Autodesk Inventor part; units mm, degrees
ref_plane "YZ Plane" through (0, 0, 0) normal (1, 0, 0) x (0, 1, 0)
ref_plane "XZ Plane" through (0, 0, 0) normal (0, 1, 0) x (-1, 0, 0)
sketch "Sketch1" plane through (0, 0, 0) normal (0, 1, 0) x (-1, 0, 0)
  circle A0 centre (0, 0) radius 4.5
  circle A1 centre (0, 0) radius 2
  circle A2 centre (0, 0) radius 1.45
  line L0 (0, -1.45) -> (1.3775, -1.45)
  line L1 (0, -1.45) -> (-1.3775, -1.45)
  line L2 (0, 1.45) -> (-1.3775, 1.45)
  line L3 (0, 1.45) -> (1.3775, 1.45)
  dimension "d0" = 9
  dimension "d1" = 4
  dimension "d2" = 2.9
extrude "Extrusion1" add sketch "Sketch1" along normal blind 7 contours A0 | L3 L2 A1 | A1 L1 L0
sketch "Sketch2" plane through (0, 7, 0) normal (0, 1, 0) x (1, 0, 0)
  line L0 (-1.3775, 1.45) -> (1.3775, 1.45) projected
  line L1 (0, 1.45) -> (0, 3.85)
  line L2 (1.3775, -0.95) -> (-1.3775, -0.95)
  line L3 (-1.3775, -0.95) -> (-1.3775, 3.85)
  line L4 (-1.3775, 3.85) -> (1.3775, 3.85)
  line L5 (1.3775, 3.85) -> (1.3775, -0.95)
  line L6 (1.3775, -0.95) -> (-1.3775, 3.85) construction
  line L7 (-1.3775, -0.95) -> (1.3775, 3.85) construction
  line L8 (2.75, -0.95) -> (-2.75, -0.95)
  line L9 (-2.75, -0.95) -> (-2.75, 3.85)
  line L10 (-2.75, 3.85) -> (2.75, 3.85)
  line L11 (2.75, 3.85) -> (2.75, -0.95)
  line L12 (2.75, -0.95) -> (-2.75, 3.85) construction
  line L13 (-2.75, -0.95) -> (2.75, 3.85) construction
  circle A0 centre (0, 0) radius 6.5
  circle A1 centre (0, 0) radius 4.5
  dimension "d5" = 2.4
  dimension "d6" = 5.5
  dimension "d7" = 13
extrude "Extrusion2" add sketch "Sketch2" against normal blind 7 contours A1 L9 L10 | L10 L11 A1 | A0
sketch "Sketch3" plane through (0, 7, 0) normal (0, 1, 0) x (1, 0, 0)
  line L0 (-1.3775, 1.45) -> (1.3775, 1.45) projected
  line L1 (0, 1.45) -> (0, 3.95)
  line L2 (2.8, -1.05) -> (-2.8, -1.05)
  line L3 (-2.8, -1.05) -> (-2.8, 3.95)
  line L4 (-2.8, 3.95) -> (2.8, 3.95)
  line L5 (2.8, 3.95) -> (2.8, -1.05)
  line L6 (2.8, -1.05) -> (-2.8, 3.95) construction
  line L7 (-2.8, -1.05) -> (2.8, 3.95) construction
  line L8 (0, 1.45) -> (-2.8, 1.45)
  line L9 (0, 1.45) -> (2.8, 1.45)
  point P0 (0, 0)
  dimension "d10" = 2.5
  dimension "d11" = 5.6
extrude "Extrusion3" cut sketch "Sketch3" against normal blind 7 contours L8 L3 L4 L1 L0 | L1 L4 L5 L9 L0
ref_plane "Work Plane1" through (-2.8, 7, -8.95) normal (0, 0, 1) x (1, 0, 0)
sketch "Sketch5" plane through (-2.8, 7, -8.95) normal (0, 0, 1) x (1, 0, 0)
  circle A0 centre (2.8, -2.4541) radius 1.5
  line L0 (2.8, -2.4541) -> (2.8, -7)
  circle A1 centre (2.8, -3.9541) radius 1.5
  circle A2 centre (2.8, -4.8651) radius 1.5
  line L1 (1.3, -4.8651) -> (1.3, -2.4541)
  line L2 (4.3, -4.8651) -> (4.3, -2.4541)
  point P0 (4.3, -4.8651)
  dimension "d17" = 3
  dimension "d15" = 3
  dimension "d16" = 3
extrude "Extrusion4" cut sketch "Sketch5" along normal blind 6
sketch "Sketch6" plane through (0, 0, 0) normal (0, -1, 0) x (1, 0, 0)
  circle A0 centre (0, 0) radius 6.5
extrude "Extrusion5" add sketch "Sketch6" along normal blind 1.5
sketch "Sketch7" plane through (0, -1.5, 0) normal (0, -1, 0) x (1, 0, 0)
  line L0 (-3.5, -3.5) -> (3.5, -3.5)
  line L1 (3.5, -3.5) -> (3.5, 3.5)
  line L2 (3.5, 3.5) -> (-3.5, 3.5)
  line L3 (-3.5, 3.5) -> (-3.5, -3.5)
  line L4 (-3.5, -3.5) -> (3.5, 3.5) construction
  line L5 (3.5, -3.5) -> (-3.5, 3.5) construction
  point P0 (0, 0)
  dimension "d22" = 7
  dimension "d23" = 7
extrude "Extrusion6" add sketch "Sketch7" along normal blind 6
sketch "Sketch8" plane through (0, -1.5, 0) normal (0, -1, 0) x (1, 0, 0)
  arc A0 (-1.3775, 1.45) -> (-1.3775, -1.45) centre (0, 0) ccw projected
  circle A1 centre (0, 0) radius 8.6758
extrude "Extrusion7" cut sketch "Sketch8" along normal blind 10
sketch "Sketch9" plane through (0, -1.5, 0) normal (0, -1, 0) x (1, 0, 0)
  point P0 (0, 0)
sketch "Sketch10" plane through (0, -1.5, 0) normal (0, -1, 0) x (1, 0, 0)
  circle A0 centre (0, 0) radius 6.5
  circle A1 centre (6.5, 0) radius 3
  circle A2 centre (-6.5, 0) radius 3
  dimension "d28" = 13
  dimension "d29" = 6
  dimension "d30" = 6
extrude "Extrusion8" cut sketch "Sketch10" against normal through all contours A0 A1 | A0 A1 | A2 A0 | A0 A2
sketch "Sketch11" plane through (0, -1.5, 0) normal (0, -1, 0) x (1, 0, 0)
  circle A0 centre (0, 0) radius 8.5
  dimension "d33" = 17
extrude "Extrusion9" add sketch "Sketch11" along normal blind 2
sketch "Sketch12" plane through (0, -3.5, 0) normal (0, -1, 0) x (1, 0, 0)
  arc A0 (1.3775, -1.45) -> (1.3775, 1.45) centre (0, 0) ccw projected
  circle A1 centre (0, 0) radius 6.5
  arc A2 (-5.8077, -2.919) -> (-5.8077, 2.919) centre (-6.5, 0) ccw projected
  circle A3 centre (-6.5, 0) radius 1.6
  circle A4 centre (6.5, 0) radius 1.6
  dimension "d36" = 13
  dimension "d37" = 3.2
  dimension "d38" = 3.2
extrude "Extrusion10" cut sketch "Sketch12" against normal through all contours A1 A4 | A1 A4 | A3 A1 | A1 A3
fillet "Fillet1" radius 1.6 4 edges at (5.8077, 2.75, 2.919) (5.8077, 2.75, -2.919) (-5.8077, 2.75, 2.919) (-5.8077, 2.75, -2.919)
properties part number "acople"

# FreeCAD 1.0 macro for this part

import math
import FreeCAD as App
import Part
import Sketcher
from FreeCAD import Vector


def edges_at(feature, points):
    """Names of the edges that pass closest to the given points."""
    edges = feature.Shape.Edges
    near = lambda p: min(range(len(edges)), key=lambda i: edges[i].distToShape(Part.Vertex(*p))[0])
    return sorted({f"Edge{near(p) + 1}" for p in points})

doc = App.newDocument("Part")
params = doc.addObject("Spreadsheet::Sheet", "Params")
for row, (alias, value) in enumerate([
    ("sketch1_diameter", "9 mm"),
    ("sketch1_radius", "2 mm"),
    ("pad1_length", "7 mm"),
    ("sketch2_diameter", "13 mm"),
    ("sketch2_diameter2", "9 mm"),
    ("pad2_length", "7 mm"),
    ("sketch3_width", "5.6 mm"),
    ("sketch3_height", "2.5 mm"),
    ("pocket1_length", "7 mm"),
    ("sketch4_radius", "1.5 mm"),
    ("pocket2_length", "6 mm"),
    ("sketch5_diameter", "13 mm"),
    ("pad3_length", "1.5 mm"),
    ("sketch6_width", "7 mm"),
    ("pad4_length", "6 mm"),
    ("pocket3_length", "10 mm"),
    ("sketch8_diameter", "6 mm"),
    ("sketch9_diameter", "17 mm"),
    ("pad5_length", "2 mm"),
    ("sketch10_diameter", "3.2 mm"),
    ("fillet_radius", "1.6 mm"),
], start=1):
    params.set(f"A{row}", alias)
    params.set(f"B{row}", "=" + value)
    params.setAlias(f"B{row}", alias)

body = doc.addObject("PartDesign::Body", "Body")

# Sketch on XZ plane
sketch1 = body.newObject("Sketcher::SketchObject", "Sketch")
sketch1.AttachmentSupport = (doc.getObject("XZ_Plane"), [""])
sketch1.MapMode = "FlatFace"
sketch1.addGeometry(Part.Circle(Vector(0, 0, 0), Vector(0, 0, 1), 4.5), False)
sketch1.addGeometry(Part.ArcOfCircle(Part.Circle(Vector(0, 0, 0), Vector(0, 0, 1), 2), math.radians(133.531199), math.radians(226.468801)), False)
sketch1.addGeometry(Part.LineSegment(Vector(-1.3775, -1.45, 0), Vector(1.3775, -1.45, 0)), False)
sketch1.addGeometry(Part.ArcOfCircle(Part.Circle(Vector(0, 0, 0), Vector(0, 0, 1), 2), math.radians(-46.468801), math.radians(46.468801)), False)
sketch1.addGeometry(Part.LineSegment(Vector(1.3775, 1.45, 0), Vector(-1.3775, 1.45, 0)), False)
sketch1.addConstraint(Sketcher.Constraint("Coincident", 1, 2, 2, 1))
sketch1.addConstraint(Sketcher.Constraint("Coincident", 2, 2, 3, 1))
sketch1.addConstraint(Sketcher.Constraint("Coincident", 3, 2, 4, 1))
sketch1.addConstraint(Sketcher.Constraint("Coincident", 4, 2, 1, 1))
sketch1.addConstraint(Sketcher.Constraint("Horizontal", 2))
sketch1.addConstraint(Sketcher.Constraint("Horizontal", 4))
sketch1.addConstraint(Sketcher.Constraint("Coincident", 0, 3, -1, 1))
sketch1.addConstraint(Sketcher.Constraint("Coincident", 1, 3, -1, 1))
sketch1.addConstraint(Sketcher.Constraint("Coincident", 3, 3, -1, 1))
sketch1.addConstraint(Sketcher.Constraint("Equal", 1, 3))
sketch1.addConstraint(Sketcher.Constraint("Vertical", 2, 2, 3, 2))
sketch1.addConstraint(Sketcher.Constraint("Diameter", 0, 9.0))
sketch1.addConstraint(Sketcher.Constraint("Radius", 1, 2.0))
sketch1.addConstraint(Sketcher.Constraint("DistanceY", 2, 2, 3, 2, 2.9))
sketch1.setExpression("Constraints[11]", "Params.sketch1_diameter")
sketch1.setExpression("Constraints[12]", "Params.sketch1_radius")
pad1 = body.newObject("PartDesign::Pad", "Pad")
pad1.Profile = sketch1
pad1.setExpression("Length", "Params.pad1_length")
pad1.Reversed = True

# Sketch on XZ plane
sketch2 = body.newObject("Sketcher::SketchObject", "Sketch001")
sketch2.AttachmentSupport = (doc.getObject("XZ_Plane"), [""])
sketch2.MapMode = "FlatFace"
sketch2.AttachmentOffset = App.Placement(Vector(0, 0, -7), App.Rotation())
sketch2.addGeometry(Part.Circle(Vector(0, 0, 0), Vector(0, 0, 1), 6.5), False)
sketch2.addGeometry(Part.Circle(Vector(0, 0, 0), Vector(0, 0, 1), 4.5), False)
sketch2.addConstraint(Sketcher.Constraint("Coincident", 0, 3, -1, 1))
sketch2.addConstraint(Sketcher.Constraint("Coincident", 1, 3, -1, 1))
sketch2.addConstraint(Sketcher.Constraint("Diameter", 0, 13.0))
sketch2.addConstraint(Sketcher.Constraint("Diameter", 1, 9.0))
sketch2.setExpression("Constraints[2]", "Params.sketch2_diameter")
sketch2.setExpression("Constraints[3]", "Params.sketch2_diameter2")
pad2 = body.newObject("PartDesign::Pad", "Pad001")
pad2.Profile = sketch2
pad2.setExpression("Length", "Params.pad2_length")

# Sketch on XZ plane
sketch3 = body.newObject("Sketcher::SketchObject", "Sketch002")
sketch3.AttachmentSupport = (doc.getObject("XZ_Plane"), [""])
sketch3.MapMode = "FlatFace"
sketch3.AttachmentOffset = App.Placement(Vector(0, 0, -7), App.Rotation())
sketch3.addGeometry(Part.LineSegment(Vector(-2.8, -1.45, 0), Vector(2.8, -1.45, 0)), False)
sketch3.addGeometry(Part.LineSegment(Vector(2.8, -1.45, 0), Vector(2.8, -3.95, 0)), False)
sketch3.addGeometry(Part.LineSegment(Vector(2.8, -3.95, 0), Vector(-2.8, -3.95, 0)), False)
sketch3.addGeometry(Part.LineSegment(Vector(-2.8, -3.95, 0), Vector(-2.8, -1.45, 0)), False)
sketch3.addConstraint(Sketcher.Constraint("Coincident", 0, 2, 1, 1))
sketch3.addConstraint(Sketcher.Constraint("Coincident", 1, 2, 2, 1))
sketch3.addConstraint(Sketcher.Constraint("Coincident", 2, 2, 3, 1))
sketch3.addConstraint(Sketcher.Constraint("Coincident", 3, 2, 0, 1))
sketch3.addConstraint(Sketcher.Constraint("Horizontal", 0))
sketch3.addConstraint(Sketcher.Constraint("Vertical", 1))
sketch3.addConstraint(Sketcher.Constraint("Horizontal", 2))
sketch3.addConstraint(Sketcher.Constraint("Vertical", 3))
sketch3.addConstraint(Sketcher.Constraint("DistanceX", 0, 1, 0, 2, 5.6))
sketch3.addConstraint(Sketcher.Constraint("DistanceY", 1, 2, 1, 1, 2.5))
sketch3.addConstraint(Sketcher.Constraint("DistanceX", -1, 1, 0, 2, 2.8))
sketch3.addConstraint(Sketcher.Constraint("DistanceY", 0, 2, -1, 1, 1.45))
sketch3.setExpression("Constraints[8]", "Params.sketch3_width")
sketch3.setExpression("Constraints[9]", "Params.sketch3_height")
pocket1 = body.newObject("PartDesign::Pocket", "Pocket")
pocket1.Profile = sketch3
pocket1.setExpression("Length", "Params.pocket1_length")
pocket1.Reversed = True

# Sketch on XY plane
sketch4 = body.newObject("Sketcher::SketchObject", "Sketch003")
sketch4.AttachmentSupport = (doc.getObject("XY_Plane"), [""])
sketch4.MapMode = "FlatFace"
sketch4.AttachmentOffset = App.Placement(Vector(0, 0, -8.95), App.Rotation())
sketch4.addGeometry(Part.ArcOfCircle(Part.Circle(Vector(0, 4.5459, 0), Vector(0, 0, 1), 1.5), math.radians(0), math.radians(180)), False)
sketch4.addGeometry(Part.LineSegment(Vector(-1.5, 4.5459, 0), Vector(-1.5, 2.1349, 0)), False)
sketch4.addGeometry(Part.ArcOfCircle(Part.Circle(Vector(0, 2.1349, 0), Vector(0, 0, 1), 1.5), math.radians(180), math.radians(360)), False)
sketch4.addGeometry(Part.LineSegment(Vector(1.5, 2.1349, 0), Vector(1.5, 4.5459, 0)), False)
sketch4.addConstraint(Sketcher.Constraint("Tangent", 0, 2, 1, 1))
sketch4.addConstraint(Sketcher.Constraint("Tangent", 1, 2, 2, 1))
sketch4.addConstraint(Sketcher.Constraint("Tangent", 2, 2, 3, 1))
sketch4.addConstraint(Sketcher.Constraint("Tangent", 3, 2, 0, 1))
sketch4.addConstraint(Sketcher.Constraint("Vertical", 1))
sketch4.addConstraint(Sketcher.Constraint("Vertical", 3))
sketch4.addConstraint(Sketcher.Constraint("PointOnObject", 0, 3, -2))
sketch4.addConstraint(Sketcher.Constraint("Radius", 0, 1.5))
sketch4.addConstraint(Sketcher.Constraint("DistanceY", 1, 2, 1, 1, 2.411))
sketch4.addConstraint(Sketcher.Constraint("DistanceY", -1, 1, 0, 3, 4.546))
sketch4.setExpression("Constraints[7]", "Params.sketch4_radius")
pocket2 = body.newObject("PartDesign::Pocket", "Pocket001")
pocket2.Profile = sketch4
pocket2.setExpression("Length", "Params.pocket2_length")
pocket2.Reversed = True

# Sketch on XZ plane
sketch5 = body.newObject("Sketcher::SketchObject", "Sketch004")
sketch5.AttachmentSupport = (doc.getObject("XZ_Plane"), [""])
sketch5.MapMode = "FlatFace"
sketch5.addGeometry(Part.Circle(Vector(0, 0, 0), Vector(0, 0, 1), 6.5), False)
sketch5.addConstraint(Sketcher.Constraint("Coincident", 0, 3, -1, 1))
sketch5.addConstraint(Sketcher.Constraint("Diameter", 0, 13.0))
sketch5.setExpression("Constraints[1]", "Params.sketch5_diameter")
pad3 = body.newObject("PartDesign::Pad", "Pad002")
pad3.Profile = sketch5
pad3.setExpression("Length", "Params.pad3_length")

# Sketch on XZ plane
sketch6 = body.newObject("Sketcher::SketchObject", "Sketch005")
sketch6.AttachmentSupport = (doc.getObject("XZ_Plane"), [""])
sketch6.MapMode = "FlatFace"
sketch6.AttachmentOffset = App.Placement(Vector(0, 0, 1.5), App.Rotation())
sketch6.addGeometry(Part.LineSegment(Vector(-3.5, 3.5, 0), Vector(-3.5, -3.5, 0)), False)
sketch6.addGeometry(Part.LineSegment(Vector(-3.5, -3.5, 0), Vector(3.5, -3.5, 0)), False)
sketch6.addGeometry(Part.LineSegment(Vector(3.5, -3.5, 0), Vector(3.5, 3.5, 0)), False)
sketch6.addGeometry(Part.LineSegment(Vector(3.5, 3.5, 0), Vector(-3.5, 3.5, 0)), False)
sketch6.addConstraint(Sketcher.Constraint("Coincident", 0, 2, 1, 1))
sketch6.addConstraint(Sketcher.Constraint("Coincident", 1, 2, 2, 1))
sketch6.addConstraint(Sketcher.Constraint("Coincident", 2, 2, 3, 1))
sketch6.addConstraint(Sketcher.Constraint("Coincident", 3, 2, 0, 1))
sketch6.addConstraint(Sketcher.Constraint("Vertical", 0))
sketch6.addConstraint(Sketcher.Constraint("Horizontal", 1))
sketch6.addConstraint(Sketcher.Constraint("Vertical", 2))
sketch6.addConstraint(Sketcher.Constraint("Horizontal", 3))
sketch6.addConstraint(Sketcher.Constraint("Symmetric", 0, 2, 2, 2, -1, 1))
sketch6.addConstraint(Sketcher.Constraint("Equal", 3, 0))
sketch6.addConstraint(Sketcher.Constraint("DistanceX", 1, 1, 1, 2, 7.0))
sketch6.setExpression("Constraints[10]", "Params.sketch6_width")
pad4 = body.newObject("PartDesign::Pad", "Pad003")
pad4.Profile = sketch6
pad4.setExpression("Length", "Params.pad4_length")

# Sketch on XZ plane
sketch7 = body.newObject("Sketcher::SketchObject", "Sketch006")
sketch7.AttachmentSupport = (doc.getObject("XZ_Plane"), [""])
sketch7.MapMode = "FlatFace"
sketch7.AttachmentOffset = App.Placement(Vector(0, 0, 1.5), App.Rotation())
sketch7.addGeometry(Part.Circle(Vector(0, 0, 0), Vector(0, 0, 1), 8.6758), False)
sketch7.addConstraint(Sketcher.Constraint("Coincident", 0, 3, -1, 1))
sketch7.addConstraint(Sketcher.Constraint("Diameter", 0, 17.3516))
pocket3 = body.newObject("PartDesign::Pocket", "Pocket002")
pocket3.Profile = sketch7
pocket3.setExpression("Length", "Params.pocket3_length")
pocket3.Reversed = True

# Sketch on XZ plane
sketch8 = body.newObject("Sketcher::SketchObject", "Sketch007")
sketch8.AttachmentSupport = (doc.getObject("XZ_Plane"), [""])
sketch8.MapMode = "FlatFace"
sketch8.AttachmentOffset = App.Placement(Vector(0, 0, 1.5), App.Rotation())
sketch8.addGeometry(Part.Circle(Vector(6.5, 0, 0), Vector(0, 0, 1), 3), False)
sketch8.addGeometry(Part.Circle(Vector(-6.5, 0, 0), Vector(0, 0, 1), 3), False)
sketch8.addConstraint(Sketcher.Constraint("Equal", 0, 1))
sketch8.addConstraint(Sketcher.Constraint("Symmetric", 0, 3, 1, 3, -1, 1))
sketch8.addConstraint(Sketcher.Constraint("PointOnObject", 0, 3, -1))
sketch8.addConstraint(Sketcher.Constraint("Diameter", 0, 6.0))
sketch8.addConstraint(Sketcher.Constraint("DistanceX", 1, 3, 0, 3, 13.0))
sketch8.setExpression("Constraints[3]", "Params.sketch8_diameter")
pocket4 = body.newObject("PartDesign::Pocket", "Pocket003")
pocket4.Profile = sketch8
pocket4.Type = "ThroughAll"

# Sketch on XZ plane
sketch9 = body.newObject("Sketcher::SketchObject", "Sketch008")
sketch9.AttachmentSupport = (doc.getObject("XZ_Plane"), [""])
sketch9.MapMode = "FlatFace"
sketch9.AttachmentOffset = App.Placement(Vector(0, 0, 1.5), App.Rotation())
sketch9.addGeometry(Part.Circle(Vector(0, 0, 0), Vector(0, 0, 1), 8.5), False)
sketch9.addConstraint(Sketcher.Constraint("Coincident", 0, 3, -1, 1))
sketch9.addConstraint(Sketcher.Constraint("Diameter", 0, 17.0))
sketch9.setExpression("Constraints[1]", "Params.sketch9_diameter")
pad5 = body.newObject("PartDesign::Pad", "Pad004")
pad5.Profile = sketch9
pad5.setExpression("Length", "Params.pad5_length")

# Sketch on XZ plane
sketch10 = body.newObject("Sketcher::SketchObject", "Sketch009")
sketch10.AttachmentSupport = (doc.getObject("XZ_Plane"), [""])
sketch10.MapMode = "FlatFace"
sketch10.AttachmentOffset = App.Placement(Vector(0, 0, 3.5), App.Rotation())
sketch10.addGeometry(Part.Circle(Vector(6.5, 0, 0), Vector(0, 0, 1), 1.6), False)
sketch10.addGeometry(Part.Circle(Vector(-6.5, 0, 0), Vector(0, 0, 1), 1.6), False)
sketch10.addConstraint(Sketcher.Constraint("Equal", 0, 1))
sketch10.addConstraint(Sketcher.Constraint("Symmetric", 0, 3, 1, 3, -1, 1))
sketch10.addConstraint(Sketcher.Constraint("PointOnObject", 0, 3, -1))
sketch10.addConstraint(Sketcher.Constraint("Diameter", 0, 3.2))
sketch10.addConstraint(Sketcher.Constraint("DistanceX", 1, 3, 0, 3, 13.0))
sketch10.setExpression("Constraints[3]", "Params.sketch10_diameter")
pocket5 = body.newObject("PartDesign::Pocket", "Pocket004")
pocket5.Profile = sketch10
pocket5.Type = "ThroughAll"
doc.recompute()

fillet = body.newObject("PartDesign::Fillet", "Fillet")
fillet.Base = (pocket5, edges_at(pocket5, [
    (5.808, 2.75, 2.919),
    (5.808, 2.75, -2.919),
    (-5.808, 2.75, 2.919),
    (-5.808, 2.75, -2.919),
]))
fillet.setExpression("Radius", "Params.fillet_radius")

doc.recompute()
